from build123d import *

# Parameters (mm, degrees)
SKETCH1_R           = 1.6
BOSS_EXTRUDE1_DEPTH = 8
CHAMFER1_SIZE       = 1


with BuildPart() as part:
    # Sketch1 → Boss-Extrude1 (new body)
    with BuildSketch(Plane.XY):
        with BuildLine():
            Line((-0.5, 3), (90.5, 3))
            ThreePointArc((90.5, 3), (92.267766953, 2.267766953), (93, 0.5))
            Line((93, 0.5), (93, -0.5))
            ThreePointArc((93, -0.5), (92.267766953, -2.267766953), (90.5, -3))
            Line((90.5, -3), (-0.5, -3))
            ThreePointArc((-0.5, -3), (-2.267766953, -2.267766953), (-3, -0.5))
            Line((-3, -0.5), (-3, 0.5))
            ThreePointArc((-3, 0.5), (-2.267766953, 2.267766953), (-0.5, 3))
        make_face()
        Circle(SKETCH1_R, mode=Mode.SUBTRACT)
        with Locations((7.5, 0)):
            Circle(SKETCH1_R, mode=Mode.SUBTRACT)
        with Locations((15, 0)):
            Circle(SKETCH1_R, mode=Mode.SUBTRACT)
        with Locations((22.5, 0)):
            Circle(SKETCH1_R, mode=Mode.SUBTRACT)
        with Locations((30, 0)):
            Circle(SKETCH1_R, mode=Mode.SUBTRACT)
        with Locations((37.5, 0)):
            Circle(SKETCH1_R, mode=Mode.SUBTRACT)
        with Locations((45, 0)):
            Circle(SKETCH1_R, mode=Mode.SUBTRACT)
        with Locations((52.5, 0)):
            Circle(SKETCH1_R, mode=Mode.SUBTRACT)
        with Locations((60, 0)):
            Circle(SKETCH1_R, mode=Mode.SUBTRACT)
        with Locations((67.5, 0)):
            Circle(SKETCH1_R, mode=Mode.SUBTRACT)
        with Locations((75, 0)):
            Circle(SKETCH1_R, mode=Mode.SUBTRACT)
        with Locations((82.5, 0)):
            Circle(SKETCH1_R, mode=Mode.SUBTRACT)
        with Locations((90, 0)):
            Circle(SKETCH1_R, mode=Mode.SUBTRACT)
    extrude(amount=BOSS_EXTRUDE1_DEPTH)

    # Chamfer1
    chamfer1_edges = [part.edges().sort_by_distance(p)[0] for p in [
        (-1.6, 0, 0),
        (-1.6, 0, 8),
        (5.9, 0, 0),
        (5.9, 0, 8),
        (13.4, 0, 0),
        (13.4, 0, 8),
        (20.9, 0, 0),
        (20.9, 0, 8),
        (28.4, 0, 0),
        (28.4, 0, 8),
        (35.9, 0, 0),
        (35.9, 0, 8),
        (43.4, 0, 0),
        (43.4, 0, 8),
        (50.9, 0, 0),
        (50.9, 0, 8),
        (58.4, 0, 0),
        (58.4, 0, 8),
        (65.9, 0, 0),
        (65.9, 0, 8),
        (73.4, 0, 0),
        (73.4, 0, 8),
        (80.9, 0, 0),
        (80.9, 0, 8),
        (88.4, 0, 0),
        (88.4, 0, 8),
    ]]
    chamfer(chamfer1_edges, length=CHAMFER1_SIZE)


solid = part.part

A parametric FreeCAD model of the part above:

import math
import FreeCAD as App
import Part
import Sketcher
from FreeCAD import Vector


def edges_at(feature, points):
    """Names of the edges that pass closest to the given points."""
    edges = feature.Shape.Edges
    near = lambda p: min(range(len(edges)), key=lambda i: edges[i].distToShape(Part.Vertex(*p))[0])
    return sorted({f"Edge{near(p) + 1}" for p in points})

doc = App.newDocument("Part")
params = doc.addObject("Spreadsheet::Sheet", "Params")
for row, (alias, value) in enumerate([
    ("sketch1_diameter", "3.2 mm"),
    ("sketch1_radius", "2.5 mm"),
    ("sketch1_width", "91 mm"),
    ("sketch1_height", "1 mm"),
    ("pad1_length", "8 mm"),
    ("chamfer_size", "1 mm"),
], start=1):
    params.set(f"A{row}", alias)
    params.set(f"B{row}", "=" + value)
    params.setAlias(f"B{row}", alias)

body = doc.addObject("PartDesign::Body", "Body")

# Sketch on XY plane
sketch1 = body.newObject("Sketcher::SketchObject", "Sketch")
sketch1.AttachmentSupport = (doc.getObject("XY_Plane"), [""])
sketch1.MapMode = "FlatFace"
sketch1.addGeometry([
    Part.LineSegment(Vector(90.5, 3, 0), Vector(-0.5, 3, 0)),  # 0
    Part.ArcOfCircle(Part.Circle(Vector(-0.5, 0.5, 0), Vector(0, 0, 1), 2.5), math.radians(90), math.radians(180)),  # 1
    Part.LineSegment(Vector(-3, 0.5, 0), Vector(-3, -0.5, 0)),  # 2
    Part.ArcOfCircle(Part.Circle(Vector(-0.5, -0.5, 0), Vector(0, 0, 1), 2.5), math.radians(180), math.radians(270)),  # 3
    Part.LineSegment(Vector(-0.5, -3, 0), Vector(90.5, -3, 0)),  # 4
    Part.ArcOfCircle(Part.Circle(Vector(90.5, -0.5, 0), Vector(0, 0, 1), 2.5), math.radians(-90), math.radians(0)),  # 5
    Part.LineSegment(Vector(93, -0.5, 0), Vector(93, 0.5, 0)),  # 6
    Part.ArcOfCircle(Part.Circle(Vector(90.5, 0.5, 0), Vector(0, 0, 1), 2.5), math.radians(0), math.radians(90)),  # 7
    Part.Circle(Vector(90, 0, 0), Vector(0, 0, 1), 1.6),  # 8
    Part.Circle(Vector(82.5, 0, 0), Vector(0, 0, 1), 1.6),  # 9
    Part.Circle(Vector(75, 0, 0), Vector(0, 0, 1), 1.6),  # 10
    Part.Circle(Vector(67.5, 0, 0), Vector(0, 0, 1), 1.6),  # 11
    Part.Circle(Vector(60, 0, 0), Vector(0, 0, 1), 1.6),  # 12
    Part.Circle(Vector(52.5, 0, 0), Vector(0, 0, 1), 1.6),  # 13
    Part.Circle(Vector(45, 0, 0), Vector(0, 0, 1), 1.6),  # 14
    Part.Circle(Vector(37.5, 0, 0), Vector(0, 0, 1), 1.6),  # 15
    Part.Circle(Vector(30, 0, 0), Vector(0, 0, 1), 1.6),  # 16
    Part.Circle(Vector(22.5, 0, 0), Vector(0, 0, 1), 1.6),  # 17
    Part.Circle(Vector(15, 0, 0), Vector(0, 0, 1), 1.6),  # 18
    Part.Circle(Vector(7.5, 0, 0), Vector(0, 0, 1), 1.6),  # 19
    Part.Circle(Vector(0, 0, 0), Vector(0, 0, 1), 1.6),  # 20
], False)
sketch1.addConstraint([
    Sketcher.Constraint("Tangent", 0, 2, 1, 1),
    Sketcher.Constraint("Tangent", 1, 2, 2, 1),
    Sketcher.Constraint("Tangent", 2, 2, 3, 1),
    Sketcher.Constraint("Tangent", 3, 2, 4, 1),
    Sketcher.Constraint("Tangent", 4, 2, 5, 1),
    Sketcher.Constraint("Tangent", 5, 2, 6, 1),
    Sketcher.Constraint("Tangent", 6, 2, 7, 1),
    Sketcher.Constraint("Tangent", 7, 2, 0, 1),
    Sketcher.Constraint("Horizontal", 0),
    Sketcher.Constraint("Vertical", 2),
    Sketcher.Constraint("Horizontal", 4),
    Sketcher.Constraint("Vertical", 6),
    Sketcher.Constraint("Coincident", 20, 3, -1, 1),
    Sketcher.Constraint("Equal", 1, 3),
    Sketcher.Constraint("Equal", 3, 5),
    Sketcher.Constraint("Equal", 5, 7),
    Sketcher.Constraint("Equal", 8, 9),
    Sketcher.Constraint("Equal", 9, 10),
    Sketcher.Constraint("Equal", 10, 11),
    Sketcher.Constraint("Equal", 11, 12),
    Sketcher.Constraint("Equal", 12, 13),
    Sketcher.Constraint("Equal", 13, 14),
    Sketcher.Constraint("Equal", 14, 15),
    Sketcher.Constraint("Equal", 15, 16),
    Sketcher.Constraint("Equal", 16, 17),
    Sketcher.Constraint("Equal", 17, 18),
    Sketcher.Constraint("Equal", 18, 19),
    Sketcher.Constraint("Equal", 19, 20),
    Sketcher.Constraint("PointOnObject", 8, 3, -1),
    Sketcher.Constraint("PointOnObject", 9, 3, -1),
    Sketcher.Constraint("PointOnObject", 10, 3, -1),
    Sketcher.Constraint("PointOnObject", 11, 3, -1),
    Sketcher.Constraint("PointOnObject", 12, 3, -1),
    Sketcher.Constraint("PointOnObject", 13, 3, -1),
    Sketcher.Constraint("PointOnObject", 14, 3, -1),
    Sketcher.Constraint("PointOnObject", 15, 3, -1),
    Sketcher.Constraint("PointOnObject", 16, 3, -1),
    Sketcher.Constraint("PointOnObject", 17, 3, -1),
    Sketcher.Constraint("PointOnObject", 18, 3, -1),
    Sketcher.Constraint("PointOnObject", 19, 3, -1),
    Sketcher.Constraint("Diameter", 8, 3.2),
    Sketcher.Constraint("Radius", 1, 2.5),
    Sketcher.Constraint("DistanceX", 0, 2, 0, 1, 91.0),
    Sketcher.Constraint("DistanceY", 2, 2, 2, 1, 1.0),
    Sketcher.Constraint("DistanceX", -1, 1, 8, 3, 90.0),
    Sketcher.Constraint("DistanceX", -1, 1, 10, 3, 75.0),
    Sketcher.Constraint("DistanceX", -1, 1, 12, 3, 60.0),
    Sketcher.Constraint("DistanceX", -1, 1, 14, 3, 45.0),
    Sketcher.Constraint("DistanceX", -1, 1, 16, 3, 30.0),
    Sketcher.Constraint("DistanceX", -1, 1, 18, 3, 15.0),
    Sketcher.Constraint("DistanceY", -1, 1, 0, 2, 3.0),
    Sketcher.Constraint("DistanceX", 1, 2, -1, 1, 3.0),
    Sketcher.Constraint("DistanceX", 9, 3, 5, 3, 8.0),
    Sketcher.Constraint("DistanceX", 11, 3, 9, 3, 15.0),
    Sketcher.Constraint("DistanceX", 13, 3, 11, 3, 15.0),
    Sketcher.Constraint("DistanceX", 15, 3, 13, 3, 15.0),
    Sketcher.Constraint("DistanceX", 17, 3, 15, 3, 15.0),
    Sketcher.Constraint("DistanceX", 1, 3, 19, 3, 8.0),
])
sketch1.setExpression("Constraints[40]", "Params.sketch1_diameter")
sketch1.setExpression("Constraints[41]", "Params.sketch1_radius")
sketch1.setExpression("Constraints[42]", "Params.sketch1_width")
sketch1.setExpression("Constraints[43]", "Params.sketch1_height")
pad1 = body.newObject("PartDesign::Pad", "Pad")
pad1.Profile = sketch1
pad1.setExpression("Length", "Params.pad1_length")
doc.recompute()

chamfer = body.newObject("PartDesign::Chamfer", "Chamfer")
chamfer.Base = (pad1, edges_at(pad1, [
    (-1.6, 0, 0),
    (-1.6, 0, 8),
    (5.9, 0, 0),
    (5.9, 0, 8),
    (13.4, 0, 0),
    (13.4, 0, 8),
    (20.9, 0, 0),
    (20.9, 0, 8),
    (28.4, 0, 0),
    (28.4, 0, 8),
    (35.9, 0, 0),
    (35.9, 0, 8),
    (43.4, 0, 0),
    (43.4, 0, 8),
    (50.9, 0, 0),
    (50.9, 0, 8),
    (58.4, 0, 0),
    (58.4, 0, 8),
    (65.9, 0, 0),
    (65.9, 0, 8),
    (73.4, 0, 0),
    (73.4, 0, 8),
    (80.9, 0, 0),
    (80.9, 0, 8),
    (88.4, 0, 0),
    (88.4, 0, 8),
]))
chamfer.setExpression("Size", "Params.chamfer_size")

doc.recompute()
